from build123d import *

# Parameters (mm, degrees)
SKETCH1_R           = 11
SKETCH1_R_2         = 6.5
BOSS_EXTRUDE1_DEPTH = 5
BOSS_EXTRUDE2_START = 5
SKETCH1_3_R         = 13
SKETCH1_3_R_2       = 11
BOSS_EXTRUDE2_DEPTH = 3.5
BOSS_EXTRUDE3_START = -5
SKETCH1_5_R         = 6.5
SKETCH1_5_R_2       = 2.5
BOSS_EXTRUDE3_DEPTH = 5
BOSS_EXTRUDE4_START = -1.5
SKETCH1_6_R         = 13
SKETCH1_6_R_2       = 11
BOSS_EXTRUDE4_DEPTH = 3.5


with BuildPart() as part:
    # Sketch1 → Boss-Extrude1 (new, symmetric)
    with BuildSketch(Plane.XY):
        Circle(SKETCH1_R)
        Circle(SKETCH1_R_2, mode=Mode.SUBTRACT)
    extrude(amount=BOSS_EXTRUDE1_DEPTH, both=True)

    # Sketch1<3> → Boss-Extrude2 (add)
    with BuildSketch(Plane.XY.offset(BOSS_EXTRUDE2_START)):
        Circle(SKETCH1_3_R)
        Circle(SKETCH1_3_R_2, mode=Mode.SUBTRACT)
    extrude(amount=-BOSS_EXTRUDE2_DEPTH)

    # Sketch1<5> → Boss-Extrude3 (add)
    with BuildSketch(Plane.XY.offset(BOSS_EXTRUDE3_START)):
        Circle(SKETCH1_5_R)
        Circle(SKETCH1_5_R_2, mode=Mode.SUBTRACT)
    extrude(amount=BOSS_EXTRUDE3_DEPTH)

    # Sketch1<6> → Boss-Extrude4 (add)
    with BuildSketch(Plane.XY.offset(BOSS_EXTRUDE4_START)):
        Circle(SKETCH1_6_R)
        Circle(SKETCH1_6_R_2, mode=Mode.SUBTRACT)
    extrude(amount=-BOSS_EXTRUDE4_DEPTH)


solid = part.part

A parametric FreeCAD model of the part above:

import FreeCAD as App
import Part
import Sketcher
from FreeCAD import Vector

doc = App.newDocument("Part")
params = doc.addObject("Spreadsheet::Sheet", "Params")
for row, (alias, value) in enumerate([
    ("sketch1_diameter", "22 mm"),
    ("sketch1_diameter2", "13 mm"),
    ("pad1_length", "10 mm"),
    ("sketch2_diameter", "26 mm"),
    ("sketch2_diameter2", "22 mm"),
    ("pad2_length", "3.5 mm"),
    ("sketch3_diameter", "13 mm"),
    ("sketch3_diameter2", "5 mm"),
    ("pad3_length", "5 mm"),
    ("sketch4_diameter", "26 mm"),
    ("sketch4_diameter2", "22 mm"),
    ("pad4_length", "3.5 mm"),
], start=1):
    params.set(f"A{row}", alias)
    params.set(f"B{row}", "=" + value)
    params.setAlias(f"B{row}", alias)

body = doc.addObject("PartDesign::Body", "Body")

# Sketch on XY plane
sketch1 = body.newObject("Sketcher::SketchObject", "Sketch")
sketch1.AttachmentSupport = (doc.getObject("XY_Plane"), [""])
sketch1.MapMode = "FlatFace"
sketch1.addGeometry(Part.Circle(Vector(0, 0, 0), Vector(0, 0, 1), 11), False)
sketch1.addGeometry(Part.Circle(Vector(0, 0, 0), Vector(0, 0, 1), 6.5), False)
sketch1.addConstraint(Sketcher.Constraint("Coincident", 0, 3, -1, 1))
sketch1.addConstraint(Sketcher.Constraint("Coincident", 1, 3, -1, 1))
sketch1.addConstraint(Sketcher.Constraint("Diameter", 0, 22.0))
sketch1.addConstraint(Sketcher.Constraint("Diameter", 1, 13.0))
sketch1.setExpression("Constraints[2]", "Params.sketch1_diameter")
sketch1.setExpression("Constraints[3]", "Params.sketch1_diameter2")
pad1 = body.newObject("PartDesign::Pad", "Pad")
pad1.Profile = sketch1
pad1.setExpression("Length", "Params.pad1_length")
pad1.Midplane = True

# Sketch on XY plane
sketch2 = body.newObject("Sketcher::SketchObject", "Sketch001")
sketch2.AttachmentSupport = (doc.getObject("XY_Plane"), [""])
sketch2.MapMode = "FlatFace"
sketch2.AttachmentOffset = App.Placement(Vector(0, 0, 5), App.Rotation())
sketch2.addGeometry(Part.Circle(Vector(0, 0, 0), Vector(0, 0, 1), 13), False)
sketch2.addGeometry(Part.Circle(Vector(0, 0, 0), Vector(0, 0, 1), 11), False)
sketch2.addConstraint(Sketcher.Constraint("Coincident", 0, 3, -1, 1))
sketch2.addConstraint(Sketcher.Constraint("Coincident", 1, 3, -1, 1))
sketch2.addConstraint(Sketcher.Constraint("Diameter", 0, 26.0))
sketch2.addConstraint(Sketcher.Constraint("Diameter", 1, 22.0))
sketch2.setExpression("Constraints[2]", "Params.sketch2_diameter")
sketch2.setExpression("Constraints[3]", "Params.sketch2_diameter2")
pad2 = body.newObject("PartDesign::Pad", "Pad001")
pad2.Profile = sketch2
pad2.setExpression("Length", "Params.pad2_length")
pad2.Reversed = True

# Sketch on XY plane
sketch3 = body.newObject("Sketcher::SketchObject", "Sketch002")
sketch3.AttachmentSupport = (doc.getObject("XY_Plane"), [""])
sketch3.MapMode = "FlatFace"
sketch3.AttachmentOffset = App.Placement(Vector(0, 0, -5), App.Rotation())
sketch3.addGeometry(Part.Circle(Vector(0, 0, 0), Vector(0, 0, 1), 6.5), False)
sketch3.addGeometry(Part.Circle(Vector(0, 0, 0), Vector(0, 0, 1), 2.5), False)
sketch3.addConstraint(Sketcher.Constraint("Coincident", 0, 3, -1, 1))
sketch3.addConstraint(Sketcher.Constraint("Coincident", 1, 3, -1, 1))
sketch3.addConstraint(Sketcher.Constraint("Diameter", 0, 13.0))
sketch3.addConstraint(Sketcher.Constraint("Diameter", 1, 5.0))
sketch3.setExpression("Constraints[2]", "Params.sketch3_diameter")
sketch3.setExpression("Constraints[3]", "Params.sketch3_diameter2")
pad3 = body.newObject("PartDesign::Pad", "Pad002")
pad3.Profile = sketch3
pad3.setExpression("Length", "Params.pad3_length")

# Sketch on XY plane
sketch4 = body.newObject("Sketcher::SketchObject", "Sketch003")
sketch4.AttachmentSupport = (doc.getObject("XY_Plane"), [""])
sketch4.MapMode = "FlatFace"
sketch4.AttachmentOffset = App.Placement(Vector(0, 0, -1.5), App.Rotation())
sketch4.addGeometry(Part.Circle(Vector(0, 0, 0), Vector(0, 0, 1), 13), False)
sketch4.addGeometry(Part.Circle(Vector(0, 0, 0), Vector(0, 0, 1), 11), False)
sketch4.addConstraint(Sketcher.Constraint("Coincident", 0, 3, -1, 1))
sketch4.addConstraint(Sketcher.Constraint("Coincident", 1, 3, -1, 1))
sketch4.addConstraint(Sketcher.Constraint("Diameter", 0, 26.0))
sketch4.addConstraint(Sketcher.Constraint("Diameter", 1, 22.0))
sketch4.setExpression("Constraints[2]", "Params.sketch4_diameter")
sketch4.setExpression("Constraints[3]", "Params.sketch4_diameter2")
pad4 = body.newObject("PartDesign::Pad", "Pad003")
pad4.Profile = sketch4
pad4.setExpression("Length", "Params.pad4_length")
pad4.Reversed = True

doc.recompute()
